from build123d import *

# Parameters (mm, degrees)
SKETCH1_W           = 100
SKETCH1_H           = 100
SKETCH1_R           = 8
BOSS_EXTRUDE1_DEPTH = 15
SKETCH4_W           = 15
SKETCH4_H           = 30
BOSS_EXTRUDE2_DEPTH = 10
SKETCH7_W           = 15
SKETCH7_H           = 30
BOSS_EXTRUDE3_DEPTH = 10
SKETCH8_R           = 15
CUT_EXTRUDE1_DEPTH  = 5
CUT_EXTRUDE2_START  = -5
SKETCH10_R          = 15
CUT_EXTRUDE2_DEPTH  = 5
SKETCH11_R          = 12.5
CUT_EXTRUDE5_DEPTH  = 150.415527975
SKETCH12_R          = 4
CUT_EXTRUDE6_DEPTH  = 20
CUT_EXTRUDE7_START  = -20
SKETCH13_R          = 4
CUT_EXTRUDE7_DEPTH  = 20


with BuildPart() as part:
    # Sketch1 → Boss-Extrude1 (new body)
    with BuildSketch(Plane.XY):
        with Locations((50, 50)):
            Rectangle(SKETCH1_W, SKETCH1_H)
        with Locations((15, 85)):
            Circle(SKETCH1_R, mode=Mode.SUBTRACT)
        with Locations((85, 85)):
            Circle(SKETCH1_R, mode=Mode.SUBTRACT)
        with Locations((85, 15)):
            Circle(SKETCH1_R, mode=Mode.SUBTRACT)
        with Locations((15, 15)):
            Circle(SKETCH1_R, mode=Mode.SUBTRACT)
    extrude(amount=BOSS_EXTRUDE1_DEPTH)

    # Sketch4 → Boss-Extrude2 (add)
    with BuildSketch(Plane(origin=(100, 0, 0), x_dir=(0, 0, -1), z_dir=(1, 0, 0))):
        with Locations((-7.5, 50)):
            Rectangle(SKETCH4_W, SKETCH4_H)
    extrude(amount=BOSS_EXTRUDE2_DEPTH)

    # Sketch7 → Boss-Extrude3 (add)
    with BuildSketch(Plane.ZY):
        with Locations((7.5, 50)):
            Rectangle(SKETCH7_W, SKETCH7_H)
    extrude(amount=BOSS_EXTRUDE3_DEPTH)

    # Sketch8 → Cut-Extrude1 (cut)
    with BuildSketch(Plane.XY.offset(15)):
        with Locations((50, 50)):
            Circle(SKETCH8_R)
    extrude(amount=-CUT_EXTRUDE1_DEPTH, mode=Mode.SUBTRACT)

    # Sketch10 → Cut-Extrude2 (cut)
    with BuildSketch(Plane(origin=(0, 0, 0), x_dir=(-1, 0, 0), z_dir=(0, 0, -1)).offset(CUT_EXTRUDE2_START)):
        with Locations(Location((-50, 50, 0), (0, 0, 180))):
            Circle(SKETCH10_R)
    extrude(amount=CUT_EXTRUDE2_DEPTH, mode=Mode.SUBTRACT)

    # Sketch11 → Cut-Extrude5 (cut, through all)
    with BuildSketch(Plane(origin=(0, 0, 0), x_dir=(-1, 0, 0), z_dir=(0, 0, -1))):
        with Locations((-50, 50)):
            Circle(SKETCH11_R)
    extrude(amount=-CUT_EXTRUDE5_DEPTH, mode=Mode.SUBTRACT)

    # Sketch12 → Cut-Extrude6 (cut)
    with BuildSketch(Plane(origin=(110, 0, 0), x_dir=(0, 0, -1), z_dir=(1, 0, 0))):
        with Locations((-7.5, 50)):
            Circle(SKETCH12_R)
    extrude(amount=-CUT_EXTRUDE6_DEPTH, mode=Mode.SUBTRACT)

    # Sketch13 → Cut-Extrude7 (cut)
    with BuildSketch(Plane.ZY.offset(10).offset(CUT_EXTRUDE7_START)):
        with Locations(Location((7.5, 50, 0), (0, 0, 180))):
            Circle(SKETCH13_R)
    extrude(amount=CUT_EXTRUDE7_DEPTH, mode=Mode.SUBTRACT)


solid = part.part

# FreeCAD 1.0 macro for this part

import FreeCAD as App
import Part
import Sketcher
from FreeCAD import Vector
Q = App.Units.Quantity

doc = App.newDocument("Part")
body = doc.addObject("PartDesign::Body", "Body")

# Sketch on XY plane
sketch1 = body.newObject("Sketcher::SketchObject", "Sketch")
sketch1.AttachmentSupport = (doc.getObject("XY_Plane"), [""])
sketch1.MapMode = "FlatFace"
sketch1.addGeometry([
    Part.LineSegment(Vector(0, 100, 0), Vector(0, 0, 0)),  # 0
    Part.LineSegment(Vector(0, 0, 0), Vector(100, 0, 0)),  # 1
    Part.LineSegment(Vector(100, 0, 0), Vector(100, 100, 0)),  # 2
    Part.LineSegment(Vector(100, 100, 0), Vector(0, 100, 0)),  # 3
    Part.Circle(Vector(15, 15, 0), Vector(0, 0, 1), 8),  # 4
    Part.Circle(Vector(85, 15, 0), Vector(0, 0, 1), 8),  # 5
    Part.Circle(Vector(15, 85, 0), Vector(0, 0, 1), 8),  # 6
    Part.Circle(Vector(85, 85, 0), Vector(0, 0, 1), 8),  # 7
], False)
sketch1.addConstraint([
    Sketcher.Constraint("Coincident", 0, 2, 1, 1),
    Sketcher.Constraint("Coincident", 1, 2, 2, 1),
    Sketcher.Constraint("Coincident", 2, 2, 3, 1),
    Sketcher.Constraint("Coincident", 3, 2, 0, 1),
    Sketcher.Constraint("Vertical", 0),
    Sketcher.Constraint("Horizontal", 1),
    Sketcher.Constraint("Vertical", 2),
    Sketcher.Constraint("Horizontal", 3),
    Sketcher.Constraint("Coincident", 0, 2, -1, 1),
    Sketcher.Constraint("Equal", 4, 5),
    Sketcher.Constraint("Equal", 5, 6),
    Sketcher.Constraint("Equal", 6, 7),
    Sketcher.Constraint("Horizontal", 4, 3, 5, 3),
    Sketcher.Constraint("Horizontal", 6, 3, 7, 3),
    Sketcher.Constraint("Vertical", 4, 3, 6, 3),
    Sketcher.Constraint("Vertical", 5, 3, 7, 3),
    Sketcher.Constraint("Equal", 3, 0),
    Sketcher.Constraint("Diameter", 4, Q("16 mm")),
    Sketcher.Constraint("DistanceX", 1, 1, 1, 2, Q("100 mm")),
    Sketcher.Constraint("DistanceX", -1, 1, 4, 3, Q("15 mm")),
    Sketcher.Constraint("DistanceY", -1, 1, 4, 3, Q("15 mm")),
    Sketcher.Constraint("DistanceX", -1, 1, 5, 3, Q("85 mm")),
    Sketcher.Constraint("DistanceY", -1, 1, 6, 3, Q("85 mm")),
])
pad1 = body.newObject("PartDesign::Pad", "Pad")
pad1.Profile = sketch1
pad1.Length = 15

# Sketch on YZ plane
sketch2 = body.newObject("Sketcher::SketchObject", "Sketch001")
sketch2.AttachmentSupport = (doc.getObject("YZ_Plane"), [""])
sketch2.MapMode = "FlatFace"
sketch2.AttachmentOffset = App.Placement(Vector(0, 0, 100), App.Rotation())
sketch2.addGeometry([
    Part.LineSegment(Vector(65, 15, 0), Vector(35, 15, 0)),
    Part.LineSegment(Vector(35, 15, 0), Vector(35, 0, 0)),
    Part.LineSegment(Vector(35, 0, 0), Vector(65, 0, 0)),
    Part.LineSegment(Vector(65, 0, 0), Vector(65, 15, 0)),
], False)
sketch2.addConstraint([
    Sketcher.Constraint("Coincident", 0, 2, 1, 1),
    Sketcher.Constraint("Coincident", 1, 2, 2, 1),
    Sketcher.Constraint("Coincident", 2, 2, 3, 1),
    Sketcher.Constraint("Coincident", 3, 2, 0, 1),
    Sketcher.Constraint("Horizontal", 0),
    Sketcher.Constraint("Vertical", 1),
    Sketcher.Constraint("Horizontal", 2),
    Sketcher.Constraint("Vertical", 3),
    Sketcher.Constraint("PointOnObject", 1, 2, -1),
    Sketcher.Constraint("DistanceX", 0, 2, 0, 1, Q("30 mm")),
    Sketcher.Constraint("DistanceY", 1, 2, 1, 1, Q("15 mm")),
    Sketcher.Constraint("DistanceX", -1, 1, 0, 2, Q("35 mm")),
])
pad2 = body.newObject("PartDesign::Pad", "Pad001")
pad2.Profile = sketch2
pad2.Length = 10

# Sketch on YZ plane
sketch3 = body.newObject("Sketcher::SketchObject", "Sketch002")
sketch3.AttachmentSupport = (doc.getObject("YZ_Plane"), [""])
sketch3.MapMode = "FlatFace"
sketch3.addGeometry([
    Part.LineSegment(Vector(65, 0, 0), Vector(35, 0, 0)),
    Part.LineSegment(Vector(35, 0, 0), Vector(35, 15, 0)),
    Part.LineSegment(Vector(35, 15, 0), Vector(65, 15, 0)),
    Part.LineSegment(Vector(65, 15, 0), Vector(65, 0, 0)),
], False)
sketch3.addConstraint([
    Sketcher.Constraint("Coincident", 0, 2, 1, 1),
    Sketcher.Constraint("Coincident", 1, 2, 2, 1),
    Sketcher.Constraint("Coincident", 2, 2, 3, 1),
    Sketcher.Constraint("Coincident", 3, 2, 0, 1),
    Sketcher.Constraint("Horizontal", 0),
    Sketcher.Constraint("Vertical", 1),
    Sketcher.Constraint("Horizontal", 2),
    Sketcher.Constraint("Vertical", 3),
    Sketcher.Constraint("PointOnObject", 0, 2, -1),
    Sketcher.Constraint("DistanceX", 0, 2, 0, 1, Q("30 mm")),
    Sketcher.Constraint("DistanceY", 1, 1, 1, 2, Q("15 mm")),
    Sketcher.Constraint("DistanceX", -1, 1, 0, 2, Q("35 mm")),
])
pad3 = body.newObject("PartDesign::Pad", "Pad002")
pad3.Profile = sketch3
pad3.Length = 10
pad3.Reversed = True

# Sketch on XY plane
sketch4 = body.newObject("Sketcher::SketchObject", "Sketch003")
sketch4.AttachmentSupport = (doc.getObject("XY_Plane"), [""])
sketch4.MapMode = "FlatFace"
sketch4.AttachmentOffset = App.Placement(Vector(0, 0, 15), App.Rotation())
sketch4.addGeometry(Part.Circle(Vector(50, 50, 0), Vector(0, 0, 1), 15), False)
sketch4.addConstraint([
    Sketcher.Constraint("Diameter", 0, Q("30 mm")),
    Sketcher.Constraint("DistanceX", -1, 1, 0, 3, Q("50 mm")),
    Sketcher.Constraint("DistanceY", -1, 1, 0, 3, Q("50 mm")),
])
pocket1 = body.newObject("PartDesign::Pocket", "Pocket")
pocket1.Profile = sketch4
pocket1.Length = 5

# Sketch on XY plane
sketch5 = body.newObject("Sketcher::SketchObject", "Sketch004")
sketch5.AttachmentSupport = (doc.getObject("XY_Plane"), [""])
sketch5.MapMode = "FlatFace"
sketch5.AttachmentOffset = App.Placement(Vector(0, 0, 5), App.Rotation())
sketch5.addGeometry(Part.Circle(Vector(50, 50, 0), Vector(0, 0, 1), 15), False)
sketch5.addConstraint([
    Sketcher.Constraint("Diameter", 0, Q("30 mm")),
    Sketcher.Constraint("DistanceX", -1, 1, 0, 3, Q("50 mm")),
    Sketcher.Constraint("DistanceY", -1, 1, 0, 3, Q("50 mm")),
])
pocket2 = body.newObject("PartDesign::Pocket", "Pocket001")
pocket2.Profile = sketch5
pocket2.Length = 5

# Sketch on XY plane
sketch6 = body.newObject("Sketcher::SketchObject", "Sketch005")
sketch6.AttachmentSupport = (doc.getObject("XY_Plane"), [""])
sketch6.MapMode = "FlatFace"
sketch6.addGeometry(Part.Circle(Vector(50, 50, 0), Vector(0, 0, 1), 12.5), False)
sketch6.addConstraint([
    Sketcher.Constraint("Diameter", 0, Q("25 mm")),
    Sketcher.Constraint("DistanceX", -1, 1, 0, 3, Q("50 mm")),
    Sketcher.Constraint("DistanceY", -1, 1, 0, 3, Q("50 mm")),
])
pocket3 = body.newObject("PartDesign::Pocket", "Pocket002")
pocket3.Profile = sketch6
pocket3.Type = "ThroughAll"
pocket3.Reversed = True

# Sketch on YZ plane
sketch7 = body.newObject("Sketcher::SketchObject", "Sketch006")
sketch7.AttachmentSupport = (doc.getObject("YZ_Plane"), [""])
sketch7.MapMode = "FlatFace"
sketch7.AttachmentOffset = App.Placement(Vector(0, 0, 110), App.Rotation())
sketch7.addGeometry(Part.Circle(Vector(50, 7.5, 0), Vector(0, 0, 1), 4), False)
sketch7.addConstraint([
    Sketcher.Constraint("Diameter", 0, Q("8 mm")),
    Sketcher.Constraint("DistanceX", -1, 1, 0, 3, Q("50 mm")),
    Sketcher.Constraint("DistanceY", -1, 1, 0, 3, Q("7.5 mm")),
])
pocket4 = body.newObject("PartDesign::Pocket", "Pocket003")
pocket4.Profile = sketch7
pocket4.Length = 20

# Sketch on YZ plane
sketch8 = body.newObject("Sketcher::SketchObject", "Sketch007")
sketch8.AttachmentSupport = (doc.getObject("YZ_Plane"), [""])
sketch8.MapMode = "FlatFace"
sketch8.AttachmentOffset = App.Placement(Vector(0, 0, 10), App.Rotation())
sketch8.addGeometry(Part.Circle(Vector(50, 7.5, 0), Vector(0, 0, 1), 4), False)
sketch8.addConstraint([
    Sketcher.Constraint("Diameter", 0, Q("8 mm")),
    Sketcher.Constraint("DistanceX", -1, 1, 0, 3, Q("50 mm")),
    Sketcher.Constraint("DistanceY", -1, 1, 0, 3, Q("7.5 mm")),
])
pocket5 = body.newObject("PartDesign::Pocket", "Pocket004")
pocket5.Profile = sketch8
pocket5.Length = 20

doc.recompute()
